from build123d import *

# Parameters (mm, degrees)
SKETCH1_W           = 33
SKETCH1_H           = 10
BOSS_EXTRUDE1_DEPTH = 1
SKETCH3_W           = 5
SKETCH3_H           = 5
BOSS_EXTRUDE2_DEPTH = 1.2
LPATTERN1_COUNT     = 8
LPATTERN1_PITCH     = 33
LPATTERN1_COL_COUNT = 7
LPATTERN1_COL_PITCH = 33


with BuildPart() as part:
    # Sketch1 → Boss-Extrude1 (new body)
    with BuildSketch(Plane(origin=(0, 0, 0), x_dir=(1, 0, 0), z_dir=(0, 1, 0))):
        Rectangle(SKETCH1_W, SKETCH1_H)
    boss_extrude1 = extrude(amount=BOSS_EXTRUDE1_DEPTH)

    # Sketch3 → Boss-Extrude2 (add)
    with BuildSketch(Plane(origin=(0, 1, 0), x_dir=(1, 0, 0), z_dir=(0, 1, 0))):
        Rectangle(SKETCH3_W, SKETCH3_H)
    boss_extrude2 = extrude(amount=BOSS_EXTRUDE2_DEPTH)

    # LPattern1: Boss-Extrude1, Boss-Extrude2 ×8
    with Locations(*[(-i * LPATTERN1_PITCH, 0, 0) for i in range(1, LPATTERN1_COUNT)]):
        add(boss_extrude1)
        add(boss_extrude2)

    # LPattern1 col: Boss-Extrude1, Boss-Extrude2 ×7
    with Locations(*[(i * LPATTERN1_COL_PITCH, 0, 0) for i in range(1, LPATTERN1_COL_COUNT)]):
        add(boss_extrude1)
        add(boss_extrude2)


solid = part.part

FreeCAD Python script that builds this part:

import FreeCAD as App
import Part
import Sketcher
from FreeCAD import Vector
Q = App.Units.Quantity


def add_polygon(sketch, points):
    """Adds a closed chain of lines whose ends are joined by coincident constraints."""
    first, n = sketch.GeometryCount, len(points)
    for a, b in zip(points, points[1:] + points[:1]):
        sketch.addGeometry(Part.LineSegment(App.Vector(*a, 0), App.Vector(*b, 0)), False)
    for i in range(n):
        sketch.addConstraint(Sketcher.Constraint("Coincident", first + i, 2, first + (i + 1) % n, 1))

doc = App.newDocument("Part")
body = doc.addObject("PartDesign::Body", "Body")

sketch1 = body.newObject("Sketcher::SketchObject", "Sketch")
sketch1.AttachmentSupport = (doc.getObject("XZ_Plane"), [""])
sketch1.MapMode = "FlatFace"
add_polygon(sketch1, [(-16, -5), (-16, 5), (16, 5), (16, -5)])
sketch1.addConstraint([
    Sketcher.Constraint("Vertical", 0),
    Sketcher.Constraint("Horizontal", 1),
    Sketcher.Constraint("Vertical", 2),
    Sketcher.Constraint("Horizontal", 3),
    Sketcher.Constraint("Symmetric", 0, 2, 2, 2, -1, 1),
    Sketcher.Constraint("DistanceX", 1, 1, 1, 2, Q("33 mm")),
    Sketcher.Constraint("DistanceY", 0, 1, 0, 2, Q("10 mm")),
])
pad1 = body.newObject("PartDesign::Pad", "Pad")
pad1.Profile = sketch1
pad1.Length = 1
pad1.Reversed = True

sketch2 = body.newObject("Sketcher::SketchObject", "Sketch001")
sketch2.AttachmentSupport = (doc.getObject("XZ_Plane"), [""])
sketch2.MapMode = "FlatFace"
sketch2.AttachmentOffset = App.Placement(Vector(0, 0, -1), App.Rotation())
add_polygon(sketch2, [(-2, -2), (-2, 2), (2, 2), (2, -2)])
sketch2.addConstraint([
    Sketcher.Constraint("Vertical", 0),
    Sketcher.Constraint("Horizontal", 1),
    Sketcher.Constraint("Vertical", 2),
    Sketcher.Constraint("Horizontal", 3),
    Sketcher.Constraint("Symmetric", 0, 2, 2, 2, -1, 1),
    Sketcher.Constraint("Equal", 3, 0),
    Sketcher.Constraint("DistanceX", 1, 1, 1, 2, Q("5 mm")),
])
pad2 = body.newObject("PartDesign::Pad", "Pad001")
pad2.Profile = sketch2
pad2.Length = 1.2
pad2.Reversed = True
doc.recompute()

linearpattern = body.newObject("PartDesign::LinearPattern", "LinearPattern")
linearpattern.Originals = [pad1, pad2]
linearpattern.Direction = (doc.getObject("X_Axis"), [""])
linearpattern.Mode = "offset"
linearpattern.Offset = 33
linearpattern.Occurrences = 8
linearpattern.Reversed = True
body.Tip = linearpattern
doc.recompute()

linearpattern2 = body.newObject("PartDesign::LinearPattern", "LinearPattern001")
linearpattern2.Originals = [pad1, pad2]
linearpattern2.Direction = (doc.getObject("X_Axis"), [""])
linearpattern2.Mode = "offset"
linearpattern2.Offset = 33
linearpattern2.Occurrences = 7
body.Tip = linearpattern2

doc.recompute()
